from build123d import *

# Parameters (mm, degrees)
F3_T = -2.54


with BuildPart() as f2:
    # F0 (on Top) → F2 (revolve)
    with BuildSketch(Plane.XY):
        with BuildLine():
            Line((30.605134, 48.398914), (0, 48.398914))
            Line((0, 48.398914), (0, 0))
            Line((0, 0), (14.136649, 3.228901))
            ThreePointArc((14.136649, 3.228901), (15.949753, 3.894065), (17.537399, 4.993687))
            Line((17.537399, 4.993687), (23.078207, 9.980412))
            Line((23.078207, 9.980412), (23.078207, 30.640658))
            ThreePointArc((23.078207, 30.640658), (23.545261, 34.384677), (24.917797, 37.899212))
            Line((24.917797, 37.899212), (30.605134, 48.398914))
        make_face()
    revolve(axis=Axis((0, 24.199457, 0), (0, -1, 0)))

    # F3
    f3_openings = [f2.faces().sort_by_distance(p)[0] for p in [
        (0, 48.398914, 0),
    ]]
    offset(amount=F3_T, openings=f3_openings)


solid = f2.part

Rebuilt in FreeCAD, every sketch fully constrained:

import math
import FreeCAD as App
import Part
import Sketcher
from FreeCAD import Vector
Q = App.Units.Quantity


def faces_at(feature, points):
    """Names of the faces that lie closest to the given points."""
    faces = feature.Shape.Faces
    near = lambda p: min(range(len(faces)), key=lambda i: faces[i].distToShape(Part.Vertex(*p))[0])
    return sorted({f"Face{near(p) + 1}" for p in points})

doc = App.newDocument("Part")
body = doc.addObject("PartDesign::Body", "Body")

sketch1 = body.newObject("Sketcher::SketchObject", "Sketch")
sketch1.AttachmentSupport = (doc.getObject("XY_Plane"), [""])
sketch1.MapMode = "FlatFace"
sketch1.addGeometry([
    Part.LineSegment(Vector(30.6, 48.4, 0), Vector(0, 48.4, 0)),
    Part.LineSegment(Vector(0, 48.4, 0), Vector(0, 0, 0)),
    Part.LineSegment(Vector(0, 0, 0), Vector(14.1, 3.2, 0)),
    Part.ArcOfCircle(Part.Circle(Vector(12.4, 10.7, 0), Vector(0, 0, 1), 7.6), math.radians(-77), math.radians(-48)),
    Part.LineSegment(Vector(17.5, 5, 0), Vector(23.1, 10, 0)),
    Part.LineSegment(Vector(23.1, 10, 0), Vector(23.1, 30.6, 0)),
    Part.ArcOfCircle(Part.Circle(Vector(38.3, 30.6, 0), Vector(0, 0, 1), 15.2), math.radians(152), math.radians(180)),
    Part.LineSegment(Vector(24.9, 37.9, 0), Vector(30.6, 48.4, 0)),
], False)
sketch1.addConstraint([
    Sketcher.Constraint("Coincident", 0, 2, 1, 1),
    Sketcher.Constraint("Coincident", 1, 2, 2, 1),
    Sketcher.Constraint("Tangent", 2, 2, 3, 1),
    Sketcher.Constraint("Tangent", 3, 2, 4, 1),
    Sketcher.Constraint("Coincident", 4, 2, 5, 1),
    Sketcher.Constraint("Tangent", 5, 2, 6, 2),
    Sketcher.Constraint("Tangent", 6, 1, 7, 1),
    Sketcher.Constraint("Coincident", 7, 2, 0, 1),
    Sketcher.Constraint("Horizontal", 0),
    Sketcher.Constraint("Vertical", 1),
    Sketcher.Constraint("Vertical", 5),
    Sketcher.Constraint("Coincident", 1, 2, -1, 1),
    Sketcher.Constraint("Radius", 3, Q("7.619989 mm")),
    Sketcher.Constraint("Radius", 6, Q("15.239985 mm")),
    Sketcher.Constraint("DistanceY", -1, 1, 2, 2, Q("3.228901 mm")),
    Sketcher.Constraint("DistanceX", -1, 1, 3, 2, Q("17.537399 mm")),
    Sketcher.Constraint("DistanceX", 3, 3, 6, 3, Q("25.878299 mm")),
    Sketcher.Constraint("DistanceY", 4, 2, 6, 1, Q("27.9188 mm")),
    Sketcher.Constraint("DistanceY", 4, 2, 7, 2, Q("38.418502 mm")),
    Sketcher.Constraint("Distance", 2, Q("14.500712 mm")),
    Sketcher.Constraint("DistanceX", 0, 2, 0, 1, Q("30.605134 mm")),
])
revolution = body.newObject("PartDesign::Revolution", "Revolution")
revolution.Profile = sketch1
revolution.ReferenceAxis = (sketch1, ["V_Axis"])
revolution.Angle = 360
doc.recompute()

thickness = body.newObject("PartDesign::Thickness", "Thickness")
thickness.Base = (revolution, faces_at(revolution, [(0, 48.399, 0)]))
thickness.Value = Q("0.1 in")
thickness.Reversed = True
thickness.Join = "Arc"

doc.recompute()
